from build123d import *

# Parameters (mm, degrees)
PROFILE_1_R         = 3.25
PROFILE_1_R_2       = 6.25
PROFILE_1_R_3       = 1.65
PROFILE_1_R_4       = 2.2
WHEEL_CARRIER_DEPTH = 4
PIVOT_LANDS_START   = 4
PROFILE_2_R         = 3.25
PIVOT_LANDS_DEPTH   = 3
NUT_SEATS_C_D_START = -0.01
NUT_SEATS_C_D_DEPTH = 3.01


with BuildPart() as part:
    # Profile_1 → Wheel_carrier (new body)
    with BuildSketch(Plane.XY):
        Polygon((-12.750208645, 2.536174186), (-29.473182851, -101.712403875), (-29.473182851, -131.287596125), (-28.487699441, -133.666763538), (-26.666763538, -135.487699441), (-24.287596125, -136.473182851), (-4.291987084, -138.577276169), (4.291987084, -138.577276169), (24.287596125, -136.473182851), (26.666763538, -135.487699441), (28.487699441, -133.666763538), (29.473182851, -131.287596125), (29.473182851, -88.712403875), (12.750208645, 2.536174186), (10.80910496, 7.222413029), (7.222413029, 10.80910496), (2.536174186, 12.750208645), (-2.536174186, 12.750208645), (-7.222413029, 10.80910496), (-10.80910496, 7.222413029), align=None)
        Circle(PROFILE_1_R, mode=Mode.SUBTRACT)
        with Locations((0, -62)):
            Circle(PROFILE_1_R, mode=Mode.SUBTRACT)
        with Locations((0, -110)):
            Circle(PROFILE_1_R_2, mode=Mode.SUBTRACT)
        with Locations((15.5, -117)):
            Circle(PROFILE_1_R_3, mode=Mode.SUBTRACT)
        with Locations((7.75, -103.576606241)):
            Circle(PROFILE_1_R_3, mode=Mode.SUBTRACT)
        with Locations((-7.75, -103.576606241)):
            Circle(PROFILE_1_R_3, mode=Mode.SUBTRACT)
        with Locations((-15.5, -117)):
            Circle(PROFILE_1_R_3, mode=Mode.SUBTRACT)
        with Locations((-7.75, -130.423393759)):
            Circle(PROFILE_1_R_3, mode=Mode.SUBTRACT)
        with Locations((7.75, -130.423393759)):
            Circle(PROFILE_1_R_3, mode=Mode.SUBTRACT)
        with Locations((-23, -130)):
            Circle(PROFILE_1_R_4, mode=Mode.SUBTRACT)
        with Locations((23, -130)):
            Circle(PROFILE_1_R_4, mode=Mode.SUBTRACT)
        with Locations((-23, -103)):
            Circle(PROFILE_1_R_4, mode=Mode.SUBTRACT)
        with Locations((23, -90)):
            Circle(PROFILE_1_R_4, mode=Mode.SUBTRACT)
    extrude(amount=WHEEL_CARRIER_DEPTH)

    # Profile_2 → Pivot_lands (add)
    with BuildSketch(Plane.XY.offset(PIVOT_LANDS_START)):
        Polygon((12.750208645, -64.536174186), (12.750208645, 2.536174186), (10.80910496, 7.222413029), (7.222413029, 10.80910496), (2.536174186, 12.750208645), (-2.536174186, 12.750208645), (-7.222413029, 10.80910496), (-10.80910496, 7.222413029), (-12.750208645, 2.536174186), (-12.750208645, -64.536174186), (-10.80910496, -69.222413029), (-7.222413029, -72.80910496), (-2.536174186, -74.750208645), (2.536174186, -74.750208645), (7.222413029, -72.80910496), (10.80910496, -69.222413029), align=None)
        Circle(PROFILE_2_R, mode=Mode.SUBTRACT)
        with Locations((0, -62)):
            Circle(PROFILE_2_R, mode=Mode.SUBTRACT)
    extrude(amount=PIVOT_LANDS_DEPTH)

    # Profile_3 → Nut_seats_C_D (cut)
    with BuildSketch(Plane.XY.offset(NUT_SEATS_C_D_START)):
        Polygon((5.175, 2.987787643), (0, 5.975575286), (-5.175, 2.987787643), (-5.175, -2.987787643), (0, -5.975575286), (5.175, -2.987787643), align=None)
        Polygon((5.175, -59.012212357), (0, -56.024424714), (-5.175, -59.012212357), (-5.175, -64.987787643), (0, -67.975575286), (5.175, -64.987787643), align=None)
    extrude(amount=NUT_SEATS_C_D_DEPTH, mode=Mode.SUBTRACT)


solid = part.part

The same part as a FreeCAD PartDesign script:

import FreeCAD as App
import Part
import Sketcher

V = App.Vector
Q = App.Units.Quantity


def add_polygon(sketch, points):
    """Adds a closed chain of lines whose ends are joined by coincident constraints."""
    first, n = sketch.GeometryCount, len(points)
    for a, b in zip(points, points[1:] + points[:1]):
        sketch.addGeometry(Part.LineSegment(App.Vector(*a, 0), App.Vector(*b, 0)), False)
    for i in range(n):
        sketch.addConstraint(Sketcher.Constraint("Coincident", first + i, 2, first + (i + 1) % n, 1))

doc = App.newDocument("Part")
body = doc.addObject("PartDesign::Body", "Body")

sketch1 = body.newObject("Sketcher::SketchObject", "Sketch")
sketch1.AttachmentSupport = (doc.getObject("XY_Plane"), [""])
sketch1.MapMode = "FlatFace"
add_polygon(sketch1, [(-12.8, 2.5), (-29.5, -101.7), (-29.5, -131.3), (-28.5, -133.7), (-26.7, -135.5), (-24.3, -136.5), (-4.3, -138.6), (4.3, -138.6), (24.3, -136.5), (26.7, -135.5), (28.5, -133.7), (29.5, -131.3), (29.5, -88.7), (12.8, 2.5), (10.8, 7.2), (7.2, 10.8), (2.5, 12.8), (-2.5, 12.8), (-7.2, 10.8), (-10.8, 7.2)])
sketch1.addGeometry(Part.Circle(V(-23, -130, 0), V(0, 0, 1), 2.2), False)
sketch1.addGeometry(Part.Circle(V(-15.5, -117, 0), V(0, 0, 1), 1.6), False)
sketch1.addGeometry(Part.Circle(V(-23, -103, 0), V(0, 0, 1), 2.2), False)
sketch1.addGeometry(Part.Circle(V(-7.8, -130.4, 0), V(0, 0, 1), 1.6), False)
sketch1.addGeometry(Part.Circle(V(-7.8, -103.6, 0), V(0, 0, 1), 1.6), False)
sketch1.addGeometry(Part.Circle(V(0, -110, 0), V(0, 0, 1), 6.2), False)
sketch1.addGeometry(Part.Circle(V(7.8, -130.4, 0), V(0, 0, 1), 1.6), False)
sketch1.addGeometry(Part.Circle(V(7.8, -103.6, 0), V(0, 0, 1), 1.6), False)
sketch1.addGeometry(Part.Circle(V(15.5, -117, 0), V(0, 0, 1), 1.6), False)
sketch1.addGeometry(Part.Circle(V(23, -130, 0), V(0, 0, 1), 2.2), False)
sketch1.addGeometry(Part.Circle(V(23, -90, 0), V(0, 0, 1), 2.2), False)
sketch1.addGeometry(Part.Circle(V(0, -62, 0), V(0, 0, 1), 3.2), False)
sketch1.addGeometry(Part.Circle(V(0, 0, 0), V(0, 0, 1), 3.2), False)
sketch1.addConstraint([
    Sketcher.Constraint("Vertical", 1),
    Sketcher.Constraint("Horizontal", 6),
    Sketcher.Constraint("Vertical", 11),
    Sketcher.Constraint("Horizontal", 16),
    Sketcher.Constraint("Coincident", 32, 3, -1, 1),
    Sketcher.Constraint("Equal", 20, 22),
    Sketcher.Constraint("Equal", 21, 23),
    Sketcher.Constraint("Equal", 23, 24),
    Sketcher.Constraint("Equal", 24, 26),
    Sketcher.Constraint("Equal", 26, 27),
    Sketcher.Constraint("Equal", 27, 28),
    Sketcher.Constraint("Equal", 22, 29),
    Sketcher.Constraint("Equal", 29, 30),
    Sketcher.Constraint("Equal", 31, 32),
    Sketcher.Constraint("Symmetric", 23, 3, 26, 3, -2),
    Sketcher.Constraint("Symmetric", 24, 3, 27, 3, -2),
    Sketcher.Constraint("Symmetric", 21, 3, 28, 3, -2),
    Sketcher.Constraint("Symmetric", 20, 3, 29, 3, -2),
    Sketcher.Constraint("Symmetric", 4, 2, 7, 2, -2),
    Sketcher.Constraint("Symmetric", 3, 2, 8, 2, -2),
    Sketcher.Constraint("Symmetric", 2, 2, 9, 2, -2),
    Sketcher.Constraint("Symmetric", 1, 2, 10, 2, -2),
    Sketcher.Constraint("Symmetric", 14, 2, 17, 2, -2),
    Sketcher.Constraint("Symmetric", 13, 2, 18, 2, -2),
    Sketcher.Constraint("Symmetric", 12, 2, 19, 2, -2),
    Sketcher.Constraint("PointOnObject", 25, 3, -2),
    Sketcher.Constraint("PointOnObject", 31, 3, -2),
    Sketcher.Constraint("Perpendicular", 2, 8),
    Sketcher.Constraint("Perpendicular", 3, 9),
    Sketcher.Constraint("Perpendicular", 8, 13),
    Sketcher.Constraint("Perpendicular", 9, 14),
    Sketcher.Constraint("Perpendicular", 10, 15),
    Sketcher.Constraint("Perpendicular", 13, 17),
    Sketcher.Constraint("Vertical", 20, 3, 22, 3),
    Sketcher.Constraint("Vertical", 23, 3, 24, 3),
    Sketcher.Constraint("Vertical", 29, 3, 30, 3),
    Sketcher.Constraint("Equal", 2, 3),
    Sketcher.Constraint("Equal", 3, 4),
    Sketcher.Constraint("Equal", 5, 7),
    Sketcher.Constraint("Equal", 13, 14),
    Sketcher.Constraint("Equal", 14, 15),
    Sketcher.Constraint("Diameter", 20, Q("4.4 mm")),
    Sketcher.Constraint("Diameter", 21, Q("3.3 mm")),
    Sketcher.Constraint("Diameter", 25, Q("12.5 mm")),
    Sketcher.Constraint("Diameter", 31, Q("6.5 mm")),
    Sketcher.Constraint("DistanceX", 20, 3, -1, 1, Q("23 mm")),
    Sketcher.Constraint("DistanceY", 20, 3, -1, 1, Q("130 mm")),
    Sketcher.Constraint("DistanceY", 21, 3, -1, 1, Q("117 mm")),
    Sketcher.Constraint("DistanceY", 22, 3, -1, 1, Q("103 mm")),
    Sketcher.Constraint("DistanceY", 25, 3, -1, 1, Q("110 mm")),
    Sketcher.Constraint("DistanceY", 30, 3, -1, 1, Q("90 mm")),
    Sketcher.Constraint("DistanceY", 31, 3, -1, 1, Q("62 mm")),
    Sketcher.Constraint("Angle", 2, Q("-67.5 deg")),
    Sketcher.Constraint("DistanceX", 21, 3, -1, 1, Q("15.5 mm")),
    Sketcher.Constraint("DistanceX", 23, 3, 26, 3, Q("15.5 mm")),
    Sketcher.Constraint("DistanceX", 16, 2, 16, 1, Q("5.072348 mm")),
    Sketcher.Constraint("DistanceX", 2, 2, -1, 1, Q("28.487699 mm")),
    Sketcher.Constraint("DistanceY", 3, 2, -1, 1, Q("135.487699 mm")),
    Sketcher.Constraint("Distance", 0, Q("105.581361 mm")),
    Sketcher.Constraint("Distance", 5, Q("20.106009 mm")),
    Sketcher.Constraint("Distance", 12, Q("92.768318 mm")),
    Sketcher.Constraint("Distance", 13, Q("5.072348 mm")),
    Sketcher.Constraint("DistanceX", 6, 1, 6, 2, Q("8.583974 mm")),
    Sketcher.Constraint("DistanceY", 1, 2, 1, 1, Q("29.575192 mm")),
    Sketcher.Constraint("DistanceY", -1, 1, 15, 2, Q("12.750209 mm")),
    Sketcher.Constraint("DistanceY", 2, 2, 23, 3, Q("3.24337 mm")),
    Sketcher.Constraint("DistanceY", 27, 3, 12, 2, Q("106.11278 mm")),
])
pad1 = body.newObject("PartDesign::Pad", "Pad")
pad1.Profile = sketch1
pad1.Length = 4

sketch2 = body.newObject("Sketcher::SketchObject", "Sketch001")
sketch2.AttachmentSupport = (doc.getObject("XY_Plane"), [""])
sketch2.MapMode = "FlatFace"
sketch2.AttachmentOffset = App.Placement(V(0, 0, 4), App.Rotation())
add_polygon(sketch2, [(12.8, -64.5), (12.8, 2.5), (10.8, 7.2), (7.2, 10.8), (2.5, 12.8), (-2.5, 12.8), (-7.2, 10.8), (-10.8, 7.2), (-12.8, 2.5), (-12.8, -64.5), (-10.8, -69.2), (-7.2, -72.8), (-2.5, -74.8), (2.5, -74.8), (7.2, -72.8), (10.8, -69.2)])
sketch2.addGeometry(Part.Circle(V(0, -62, 0), V(0, 0, 1), 3.2), False)
sketch2.addGeometry(Part.Circle(V(0, 0, 0), V(0, 0, 1), 3.2), False)
sketch2.addConstraint([
    Sketcher.Constraint("Vertical", 0),
    Sketcher.Constraint("Horizontal", 4),
    Sketcher.Constraint("Vertical", 8),
    Sketcher.Constraint("Horizontal", 12),
    Sketcher.Constraint("Coincident", 17, 3, -1, 1),
    Sketcher.Constraint("Equal", 16, 17),
    Sketcher.Constraint("Symmetric", 2, 2, 5, 2, -2),
    Sketcher.Constraint("Symmetric", 1, 2, 6, 2, -2),
    Sketcher.Constraint("Symmetric", 0, 2, 7, 2, -2),
    Sketcher.Constraint("Symmetric", 10, 2, 13, 2, -2),
    Sketcher.Constraint("Symmetric", 9, 2, 14, 2, -2),
    Sketcher.Constraint("PointOnObject", 16, 3, -2),
    Sketcher.Constraint("Perpendicular", 1, 5),
    Sketcher.Constraint("Perpendicular", 2, 6),
    Sketcher.Constraint("Perpendicular", 3, 7),
    Sketcher.Constraint("Perpendicular", 5, 9),
    Sketcher.Constraint("Perpendicular", 6, 10),
    Sketcher.Constraint("Perpendicular", 7, 11),
    Sketcher.Constraint("Perpendicular", 9, 13),
    Sketcher.Constraint("Perpendicular", 11, 15),
    Sketcher.Constraint("Vertical", 6, 2, 9, 2),
    Sketcher.Constraint("Vertical", 5, 2, 10, 2),
    Sketcher.Constraint("Vertical", 4, 2, 11, 2),
    Sketcher.Constraint("Equal", 1, 2),
    Sketcher.Constraint("Equal", 2, 3),
    Sketcher.Constraint("Diameter", 16, Q("6.5 mm")),
    Sketcher.Constraint("DistanceY", 16, 3, -1, 1, Q("62 mm")),
    Sketcher.Constraint("Angle", 1, Q("112.5 deg")),
    Sketcher.Constraint("DistanceX", 4, 2, 4, 1, Q("5.072348 mm")),
    Sketcher.Constraint("DistanceY", 0, 1, 0, 2, Q("67.072348 mm")),
    Sketcher.Constraint("Distance", 1, Q("5.072348 mm")),
    Sketcher.Constraint("DistanceY", -1, 1, 3, 2, Q("12.750209 mm")),
])
pad2 = body.newObject("PartDesign::Pad", "Pad001")
pad2.Profile = sketch2
pad2.Length = 3

sketch3 = body.newObject("Sketcher::SketchObject", "Sketch002")
sketch3.AttachmentSupport = (doc.getObject("XY_Plane"), [""])
sketch3.MapMode = "FlatFace"
sketch3.AttachmentOffset = App.Placement(V(0, 0, -0.01), App.Rotation())
add_polygon(sketch3, [(5, 3), (0, 6), (-5, 3), (-5, -3), (0, -6), (5, -3)])
add_polygon(sketch3, [(5, -59), (0, -56), (-5, -59), (-5, -65), (0, -68), (5, -65)])
sketch3.addConstraint([
    Sketcher.Constraint("Vertical", 2),
    Sketcher.Constraint("Vertical", 5),
    Sketcher.Constraint("Vertical", 8),
    Sketcher.Constraint("Vertical", 11),
    Sketcher.Constraint("Symmetric", 0, 2, 3, 2, -1, 1),
    Sketcher.Constraint("Symmetric", 1, 2, 4, 2, -1, 1),
    Sketcher.Constraint("Symmetric", 8, 2, 10, 2, -2),
    Sketcher.Constraint("PointOnObject", 0, 2, -2),
    Sketcher.Constraint("PointOnObject", 6, 2, -2),
    Sketcher.Constraint("PointOnObject", 9, 2, -2),
    Sketcher.Constraint("Parallel", 0, 3),
    Sketcher.Constraint("Parallel", 3, 6),
    Sketcher.Constraint("Parallel", 4, 7),
    Sketcher.Constraint("Parallel", 6, 9),
    Sketcher.Constraint("Parallel", 7, 10),
    Sketcher.Constraint("Vertical", 2, 2, 7, 2),
    Sketcher.Constraint("Equal", 5, 8),
    Sketcher.Constraint("Angle", 0, Q("150 deg")),
    Sketcher.Constraint("DistanceY", 7, 2, 1, 2, Q("62 mm")),
    Sketcher.Constraint("DistanceX", 2, 2, 4, 2, Q("10.35 mm")),
    Sketcher.Constraint("DistanceY", 2, 2, 2, 1, Q("5.975575 mm")),
])
pocket1 = body.newObject("PartDesign::Pocket", "Pocket")
pocket1.Profile = sketch3
pocket1.Length = 3.01
pocket1.Reversed = True

doc.recompute()
